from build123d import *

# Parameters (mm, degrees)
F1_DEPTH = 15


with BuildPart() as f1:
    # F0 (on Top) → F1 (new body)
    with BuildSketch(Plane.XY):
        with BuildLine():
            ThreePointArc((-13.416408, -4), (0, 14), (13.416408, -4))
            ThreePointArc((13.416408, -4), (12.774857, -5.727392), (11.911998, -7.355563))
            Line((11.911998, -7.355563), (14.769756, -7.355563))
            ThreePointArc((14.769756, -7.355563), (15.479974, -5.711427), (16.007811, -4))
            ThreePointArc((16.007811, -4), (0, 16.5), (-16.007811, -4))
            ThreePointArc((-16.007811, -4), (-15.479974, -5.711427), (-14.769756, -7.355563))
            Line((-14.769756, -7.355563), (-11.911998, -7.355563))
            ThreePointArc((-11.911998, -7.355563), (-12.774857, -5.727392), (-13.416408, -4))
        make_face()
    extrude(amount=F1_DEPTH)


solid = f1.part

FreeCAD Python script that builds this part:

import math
import FreeCAD as App
import Part
import Sketcher

doc = App.newDocument("Part")
body = doc.addObject("PartDesign::Body", "Body")

sketch1 = body.newObject("Sketcher::SketchObject", "Sketch")
sketch1.AttachmentSupport = (doc.getObject("XY_Plane"), [""])
sketch1.MapMode = "FlatFace"
sketch1.addGeometry([
    Part.ArcOfCircle(Part.Circle(App.Vector(0, 0, 0), App.Vector(0, 0, 1), 14), math.radians(-17), math.radians(197)),
    Part.ArcOfCircle(Part.Circle(App.Vector(0, 0, 0), App.Vector(0, 0, 1), 14), math.radians(-31.69), math.radians(-16.6)),
    Part.LineSegment(App.Vector(11.9, -7.4, 0), App.Vector(14.8, -7.4, 0)),
    Part.ArcOfCircle(Part.Circle(App.Vector(0, 0, 0), App.Vector(0, 0, 1), 16.5), math.radians(-26.47), math.radians(-14.03)),
    Part.ArcOfCircle(Part.Circle(App.Vector(0, 0, 0), App.Vector(0, 0, 1), 16.5), math.radians(-14), math.radians(194)),
    Part.ArcOfCircle(Part.Circle(App.Vector(0, 0, 0), App.Vector(0, 0, 1), 16.5), math.radians(-165.97), math.radians(-153.53)),
    Part.LineSegment(App.Vector(-14.8, -7.4, 0), App.Vector(-11.9, -7.4, 0)),
    Part.ArcOfCircle(Part.Circle(App.Vector(0, 0, 0), App.Vector(0, 0, 1), 14), math.radians(-163.4), math.radians(-148.31)),
], False)
sketch1.addConstraint([
    Sketcher.Constraint("Tangent", 0, 1, 1, 2),
    Sketcher.Constraint("Coincident", 1, 1, 2, 1),
    Sketcher.Constraint("Coincident", 2, 2, 3, 1),
    Sketcher.Constraint("Tangent", 3, 2, 4, 1),
    Sketcher.Constraint("Tangent", 4, 2, 5, 1),
    Sketcher.Constraint("Coincident", 5, 2, 6, 1),
    Sketcher.Constraint("Coincident", 6, 2, 7, 2),
    Sketcher.Constraint("Tangent", 7, 1, 0, 2),
    Sketcher.Constraint("Horizontal", 2),
    Sketcher.Constraint("Horizontal", 6),
    Sketcher.Constraint("Coincident", 0, 3, -1, 1),
    Sketcher.Constraint("Coincident", 4, 3, -1, 1),
    Sketcher.Constraint("Equal", 3, 5),
    Sketcher.Constraint("Equal", 1, 7),
    Sketcher.Constraint("Horizontal", 0, 1, 3, 2),
    Sketcher.Constraint("Horizontal", 3, 2, 4, 2),
    Sketcher.Constraint("Horizontal", 2, 2, 5, 2),
    Sketcher.Constraint("Horizontal", 4, 2, 7, 1),
    Sketcher.Constraint("Radius", 0, 14.0),
    Sketcher.Constraint("Radius", 4, 16.5),
    Sketcher.Constraint("DistanceY", 0, 1, -1, 1, 4.0),
    Sketcher.Constraint("Radius", 1, 14.000053),
    Sketcher.Constraint("Radius", 3, 16.500065),
    Sketcher.Constraint("DistanceX", 2, 1, 2, 2, 2.857758),
])
pad1 = body.newObject("PartDesign::Pad", "Pad")
pad1.Profile = sketch1
pad1.Length = 15

doc.recompute()
